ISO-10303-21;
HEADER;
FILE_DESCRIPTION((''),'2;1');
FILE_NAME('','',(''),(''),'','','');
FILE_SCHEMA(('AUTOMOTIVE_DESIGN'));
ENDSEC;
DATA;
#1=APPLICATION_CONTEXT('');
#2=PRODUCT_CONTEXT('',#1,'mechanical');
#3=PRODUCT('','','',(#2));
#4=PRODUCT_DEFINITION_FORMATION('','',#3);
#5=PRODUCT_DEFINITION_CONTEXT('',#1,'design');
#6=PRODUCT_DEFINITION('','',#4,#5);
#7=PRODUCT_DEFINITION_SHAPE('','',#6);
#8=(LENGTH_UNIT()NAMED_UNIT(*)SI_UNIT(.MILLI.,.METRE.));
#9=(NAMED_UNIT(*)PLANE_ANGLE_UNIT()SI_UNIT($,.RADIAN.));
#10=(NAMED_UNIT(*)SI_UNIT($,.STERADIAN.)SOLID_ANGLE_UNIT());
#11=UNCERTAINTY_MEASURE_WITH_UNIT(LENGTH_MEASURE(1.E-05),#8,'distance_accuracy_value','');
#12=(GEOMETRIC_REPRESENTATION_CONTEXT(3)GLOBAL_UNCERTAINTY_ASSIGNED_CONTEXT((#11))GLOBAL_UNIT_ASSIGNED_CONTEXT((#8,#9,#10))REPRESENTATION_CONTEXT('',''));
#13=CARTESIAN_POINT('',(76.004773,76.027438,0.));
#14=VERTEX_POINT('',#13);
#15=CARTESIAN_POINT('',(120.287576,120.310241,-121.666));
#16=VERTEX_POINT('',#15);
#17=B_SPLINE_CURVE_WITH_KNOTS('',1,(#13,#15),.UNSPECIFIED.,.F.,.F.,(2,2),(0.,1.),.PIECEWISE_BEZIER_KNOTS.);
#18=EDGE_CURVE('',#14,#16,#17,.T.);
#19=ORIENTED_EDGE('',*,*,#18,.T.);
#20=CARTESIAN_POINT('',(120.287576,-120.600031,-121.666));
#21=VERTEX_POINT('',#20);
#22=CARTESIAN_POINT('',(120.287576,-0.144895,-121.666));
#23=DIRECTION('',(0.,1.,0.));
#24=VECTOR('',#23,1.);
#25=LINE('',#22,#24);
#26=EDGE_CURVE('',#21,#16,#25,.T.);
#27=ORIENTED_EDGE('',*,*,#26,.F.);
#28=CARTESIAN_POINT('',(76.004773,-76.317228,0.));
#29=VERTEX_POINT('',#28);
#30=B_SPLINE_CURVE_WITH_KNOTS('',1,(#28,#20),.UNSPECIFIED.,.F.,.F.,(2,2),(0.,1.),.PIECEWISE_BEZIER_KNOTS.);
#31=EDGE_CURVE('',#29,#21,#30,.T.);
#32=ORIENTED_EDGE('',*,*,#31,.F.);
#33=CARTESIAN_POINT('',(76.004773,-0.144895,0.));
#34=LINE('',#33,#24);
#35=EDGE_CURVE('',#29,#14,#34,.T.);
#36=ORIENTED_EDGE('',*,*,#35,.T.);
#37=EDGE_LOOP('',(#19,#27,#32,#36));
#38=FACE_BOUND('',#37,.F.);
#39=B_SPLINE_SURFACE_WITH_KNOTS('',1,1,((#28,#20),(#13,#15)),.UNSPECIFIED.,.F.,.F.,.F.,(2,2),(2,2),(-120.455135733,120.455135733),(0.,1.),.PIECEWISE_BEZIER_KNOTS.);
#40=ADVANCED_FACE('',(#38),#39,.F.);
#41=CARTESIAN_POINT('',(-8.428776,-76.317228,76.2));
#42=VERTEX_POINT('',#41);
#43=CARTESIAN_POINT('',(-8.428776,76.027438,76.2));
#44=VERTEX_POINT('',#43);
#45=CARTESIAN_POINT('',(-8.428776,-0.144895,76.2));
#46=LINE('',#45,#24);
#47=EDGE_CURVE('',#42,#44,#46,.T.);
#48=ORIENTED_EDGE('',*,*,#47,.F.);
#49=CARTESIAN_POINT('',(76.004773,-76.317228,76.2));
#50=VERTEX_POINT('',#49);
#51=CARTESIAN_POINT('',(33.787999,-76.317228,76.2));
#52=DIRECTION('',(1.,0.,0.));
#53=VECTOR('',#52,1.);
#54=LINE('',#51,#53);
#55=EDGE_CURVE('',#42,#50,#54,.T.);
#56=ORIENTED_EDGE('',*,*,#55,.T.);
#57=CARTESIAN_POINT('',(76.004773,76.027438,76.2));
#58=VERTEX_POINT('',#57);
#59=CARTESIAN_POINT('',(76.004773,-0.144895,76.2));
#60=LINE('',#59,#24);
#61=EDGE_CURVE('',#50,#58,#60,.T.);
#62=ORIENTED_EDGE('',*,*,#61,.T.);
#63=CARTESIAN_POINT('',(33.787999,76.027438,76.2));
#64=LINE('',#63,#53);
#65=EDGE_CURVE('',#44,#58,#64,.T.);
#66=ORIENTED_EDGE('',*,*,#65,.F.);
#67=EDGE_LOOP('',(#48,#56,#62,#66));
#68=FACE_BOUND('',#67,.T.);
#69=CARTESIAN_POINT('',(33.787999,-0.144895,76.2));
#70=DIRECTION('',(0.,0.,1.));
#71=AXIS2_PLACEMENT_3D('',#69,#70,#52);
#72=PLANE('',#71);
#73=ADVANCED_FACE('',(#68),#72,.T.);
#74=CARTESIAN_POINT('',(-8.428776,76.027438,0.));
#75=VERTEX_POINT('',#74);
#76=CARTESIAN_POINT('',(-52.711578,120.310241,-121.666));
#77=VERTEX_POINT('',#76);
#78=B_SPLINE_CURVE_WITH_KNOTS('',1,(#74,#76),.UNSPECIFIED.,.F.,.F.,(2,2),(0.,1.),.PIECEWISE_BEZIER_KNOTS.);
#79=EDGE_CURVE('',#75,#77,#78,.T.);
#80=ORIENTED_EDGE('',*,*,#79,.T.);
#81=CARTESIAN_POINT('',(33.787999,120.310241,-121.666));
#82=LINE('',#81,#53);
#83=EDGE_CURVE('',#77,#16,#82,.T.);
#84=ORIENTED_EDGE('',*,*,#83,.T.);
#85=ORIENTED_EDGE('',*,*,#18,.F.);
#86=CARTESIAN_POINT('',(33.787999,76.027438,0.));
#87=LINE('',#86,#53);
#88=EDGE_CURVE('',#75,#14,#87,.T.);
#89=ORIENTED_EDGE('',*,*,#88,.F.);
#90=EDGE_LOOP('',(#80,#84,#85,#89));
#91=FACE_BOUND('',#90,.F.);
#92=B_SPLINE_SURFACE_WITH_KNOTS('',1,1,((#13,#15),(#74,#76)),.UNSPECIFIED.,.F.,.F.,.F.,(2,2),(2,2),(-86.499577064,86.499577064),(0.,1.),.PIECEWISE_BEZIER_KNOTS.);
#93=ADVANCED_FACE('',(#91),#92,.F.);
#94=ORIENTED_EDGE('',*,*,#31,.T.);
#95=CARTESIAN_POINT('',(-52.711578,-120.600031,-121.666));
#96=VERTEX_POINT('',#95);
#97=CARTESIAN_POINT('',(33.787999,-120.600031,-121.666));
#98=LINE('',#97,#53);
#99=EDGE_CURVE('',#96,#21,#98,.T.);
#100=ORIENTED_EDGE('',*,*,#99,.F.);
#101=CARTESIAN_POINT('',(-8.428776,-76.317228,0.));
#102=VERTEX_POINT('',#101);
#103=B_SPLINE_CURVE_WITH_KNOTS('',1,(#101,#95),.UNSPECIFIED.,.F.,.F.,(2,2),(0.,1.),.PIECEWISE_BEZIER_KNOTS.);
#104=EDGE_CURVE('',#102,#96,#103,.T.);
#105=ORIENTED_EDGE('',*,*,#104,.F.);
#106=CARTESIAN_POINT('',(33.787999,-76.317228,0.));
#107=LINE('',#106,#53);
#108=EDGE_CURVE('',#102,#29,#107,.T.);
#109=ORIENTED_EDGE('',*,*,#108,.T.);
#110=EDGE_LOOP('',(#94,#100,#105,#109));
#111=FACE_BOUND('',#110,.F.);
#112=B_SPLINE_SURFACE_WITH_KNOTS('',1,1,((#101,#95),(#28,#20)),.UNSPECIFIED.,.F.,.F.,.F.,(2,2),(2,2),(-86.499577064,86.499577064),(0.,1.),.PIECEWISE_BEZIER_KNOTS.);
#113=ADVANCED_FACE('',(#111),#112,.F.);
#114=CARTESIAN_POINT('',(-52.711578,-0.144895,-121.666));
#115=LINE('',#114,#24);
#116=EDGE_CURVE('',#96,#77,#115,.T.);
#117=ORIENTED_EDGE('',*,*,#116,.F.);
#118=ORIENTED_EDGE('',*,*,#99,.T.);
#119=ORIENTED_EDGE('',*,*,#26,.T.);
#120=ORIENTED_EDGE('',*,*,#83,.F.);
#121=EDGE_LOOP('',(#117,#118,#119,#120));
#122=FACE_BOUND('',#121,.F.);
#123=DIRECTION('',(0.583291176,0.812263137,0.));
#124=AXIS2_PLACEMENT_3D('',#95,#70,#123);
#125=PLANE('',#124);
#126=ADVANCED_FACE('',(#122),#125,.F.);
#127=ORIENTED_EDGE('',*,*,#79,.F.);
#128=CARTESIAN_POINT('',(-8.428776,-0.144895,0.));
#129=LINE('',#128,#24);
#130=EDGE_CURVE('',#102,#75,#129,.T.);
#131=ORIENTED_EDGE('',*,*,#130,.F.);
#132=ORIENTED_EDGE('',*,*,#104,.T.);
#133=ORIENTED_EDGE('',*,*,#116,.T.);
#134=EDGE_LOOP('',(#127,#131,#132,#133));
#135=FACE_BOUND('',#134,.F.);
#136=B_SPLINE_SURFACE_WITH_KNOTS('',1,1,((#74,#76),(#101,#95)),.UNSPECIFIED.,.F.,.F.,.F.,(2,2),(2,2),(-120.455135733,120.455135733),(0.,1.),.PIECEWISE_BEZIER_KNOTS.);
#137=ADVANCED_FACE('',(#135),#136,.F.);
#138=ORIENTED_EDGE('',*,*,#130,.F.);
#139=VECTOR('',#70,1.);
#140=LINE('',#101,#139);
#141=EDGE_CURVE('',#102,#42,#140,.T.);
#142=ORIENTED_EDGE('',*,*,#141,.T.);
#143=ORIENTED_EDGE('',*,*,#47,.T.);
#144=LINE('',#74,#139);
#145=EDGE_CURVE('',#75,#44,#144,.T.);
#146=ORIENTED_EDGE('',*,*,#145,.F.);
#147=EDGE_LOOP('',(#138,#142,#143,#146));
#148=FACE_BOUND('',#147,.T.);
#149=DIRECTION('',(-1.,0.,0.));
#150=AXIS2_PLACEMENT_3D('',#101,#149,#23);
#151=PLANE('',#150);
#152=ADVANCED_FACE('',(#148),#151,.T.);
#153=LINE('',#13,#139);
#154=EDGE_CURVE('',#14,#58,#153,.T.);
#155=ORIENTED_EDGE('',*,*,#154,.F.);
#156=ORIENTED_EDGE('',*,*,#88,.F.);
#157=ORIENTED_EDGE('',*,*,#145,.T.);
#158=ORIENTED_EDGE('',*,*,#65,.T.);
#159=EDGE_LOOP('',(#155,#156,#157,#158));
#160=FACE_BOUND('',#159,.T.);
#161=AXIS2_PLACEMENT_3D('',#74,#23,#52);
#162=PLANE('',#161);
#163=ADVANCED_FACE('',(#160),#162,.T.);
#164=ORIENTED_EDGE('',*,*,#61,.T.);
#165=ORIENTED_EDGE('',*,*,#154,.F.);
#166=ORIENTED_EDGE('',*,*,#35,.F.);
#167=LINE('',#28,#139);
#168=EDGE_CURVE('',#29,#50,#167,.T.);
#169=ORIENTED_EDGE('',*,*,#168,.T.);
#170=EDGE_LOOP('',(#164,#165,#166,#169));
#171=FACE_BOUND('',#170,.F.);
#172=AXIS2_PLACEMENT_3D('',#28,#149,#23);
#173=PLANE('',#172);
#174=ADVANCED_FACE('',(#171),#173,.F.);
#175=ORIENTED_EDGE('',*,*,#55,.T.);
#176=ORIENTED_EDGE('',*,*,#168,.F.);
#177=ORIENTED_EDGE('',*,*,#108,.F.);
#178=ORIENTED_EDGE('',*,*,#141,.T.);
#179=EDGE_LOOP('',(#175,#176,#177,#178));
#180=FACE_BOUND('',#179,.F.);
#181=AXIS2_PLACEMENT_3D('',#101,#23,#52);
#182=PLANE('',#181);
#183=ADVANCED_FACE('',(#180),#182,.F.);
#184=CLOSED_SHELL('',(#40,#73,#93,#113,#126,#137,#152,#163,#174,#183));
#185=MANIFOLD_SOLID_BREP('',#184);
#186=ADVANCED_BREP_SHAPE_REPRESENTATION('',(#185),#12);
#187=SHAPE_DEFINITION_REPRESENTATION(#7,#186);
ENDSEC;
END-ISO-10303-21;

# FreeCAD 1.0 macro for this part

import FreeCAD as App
import Part
import Sketcher
from FreeCAD import Vector
Q = App.Units.Quantity

doc = App.newDocument("Part")
body = doc.addObject("PartDesign::Body", "Body")

# Sketch on XY plane
sketch1 = body.newObject("Sketcher::SketchObject", "Sketch")
sketch1.AttachmentSupport = (doc.getObject("XY_Plane"), [""])
sketch1.MapMode = "FlatFace"
sketch1.addGeometry([
    Part.LineSegment(Vector(-8, 76, 0), Vector(-8, -76, 0)),
    Part.LineSegment(Vector(-8, -76, 0), Vector(76, -76, 0)),
    Part.LineSegment(Vector(76, -76, 0), Vector(76, 76, 0)),
    Part.LineSegment(Vector(76, 76, 0), Vector(-8, 76, 0)),
], False)
sketch1.addConstraint([
    Sketcher.Constraint("Coincident", 0, 2, 1, 1),
    Sketcher.Constraint("Coincident", 1, 2, 2, 1),
    Sketcher.Constraint("Coincident", 2, 2, 3, 1),
    Sketcher.Constraint("Coincident", 3, 2, 0, 1),
    Sketcher.Constraint("Vertical", 0),
    Sketcher.Constraint("Horizontal", 1),
    Sketcher.Constraint("Vertical", 2),
    Sketcher.Constraint("Horizontal", 3),
    Sketcher.Constraint("DistanceX", 1, 1, 1, 2, Q("84.433549 mm")),
    Sketcher.Constraint("DistanceY", 0, 2, 0, 1, Q("152.344666 mm")),
    Sketcher.Constraint("DistanceY", 0, 2, -1, 1, Q("76.317228 mm")),
    Sketcher.Constraint("DistanceX", 0, 2, -1, 1, Q("8.428776 mm")),
])
pad1 = body.newObject("PartDesign::Pad", "Pad")
pad1.Profile = sketch1
pad1.Length = Q("3 in")
pad2 = body.newObject("PartDesign::Pad", "Pad001")
pad2.Profile = sketch1
pad2.Length = Q("4.79 in")
pad2.Reversed = True
pad2.TaperAngle = 20

doc.recompute()
